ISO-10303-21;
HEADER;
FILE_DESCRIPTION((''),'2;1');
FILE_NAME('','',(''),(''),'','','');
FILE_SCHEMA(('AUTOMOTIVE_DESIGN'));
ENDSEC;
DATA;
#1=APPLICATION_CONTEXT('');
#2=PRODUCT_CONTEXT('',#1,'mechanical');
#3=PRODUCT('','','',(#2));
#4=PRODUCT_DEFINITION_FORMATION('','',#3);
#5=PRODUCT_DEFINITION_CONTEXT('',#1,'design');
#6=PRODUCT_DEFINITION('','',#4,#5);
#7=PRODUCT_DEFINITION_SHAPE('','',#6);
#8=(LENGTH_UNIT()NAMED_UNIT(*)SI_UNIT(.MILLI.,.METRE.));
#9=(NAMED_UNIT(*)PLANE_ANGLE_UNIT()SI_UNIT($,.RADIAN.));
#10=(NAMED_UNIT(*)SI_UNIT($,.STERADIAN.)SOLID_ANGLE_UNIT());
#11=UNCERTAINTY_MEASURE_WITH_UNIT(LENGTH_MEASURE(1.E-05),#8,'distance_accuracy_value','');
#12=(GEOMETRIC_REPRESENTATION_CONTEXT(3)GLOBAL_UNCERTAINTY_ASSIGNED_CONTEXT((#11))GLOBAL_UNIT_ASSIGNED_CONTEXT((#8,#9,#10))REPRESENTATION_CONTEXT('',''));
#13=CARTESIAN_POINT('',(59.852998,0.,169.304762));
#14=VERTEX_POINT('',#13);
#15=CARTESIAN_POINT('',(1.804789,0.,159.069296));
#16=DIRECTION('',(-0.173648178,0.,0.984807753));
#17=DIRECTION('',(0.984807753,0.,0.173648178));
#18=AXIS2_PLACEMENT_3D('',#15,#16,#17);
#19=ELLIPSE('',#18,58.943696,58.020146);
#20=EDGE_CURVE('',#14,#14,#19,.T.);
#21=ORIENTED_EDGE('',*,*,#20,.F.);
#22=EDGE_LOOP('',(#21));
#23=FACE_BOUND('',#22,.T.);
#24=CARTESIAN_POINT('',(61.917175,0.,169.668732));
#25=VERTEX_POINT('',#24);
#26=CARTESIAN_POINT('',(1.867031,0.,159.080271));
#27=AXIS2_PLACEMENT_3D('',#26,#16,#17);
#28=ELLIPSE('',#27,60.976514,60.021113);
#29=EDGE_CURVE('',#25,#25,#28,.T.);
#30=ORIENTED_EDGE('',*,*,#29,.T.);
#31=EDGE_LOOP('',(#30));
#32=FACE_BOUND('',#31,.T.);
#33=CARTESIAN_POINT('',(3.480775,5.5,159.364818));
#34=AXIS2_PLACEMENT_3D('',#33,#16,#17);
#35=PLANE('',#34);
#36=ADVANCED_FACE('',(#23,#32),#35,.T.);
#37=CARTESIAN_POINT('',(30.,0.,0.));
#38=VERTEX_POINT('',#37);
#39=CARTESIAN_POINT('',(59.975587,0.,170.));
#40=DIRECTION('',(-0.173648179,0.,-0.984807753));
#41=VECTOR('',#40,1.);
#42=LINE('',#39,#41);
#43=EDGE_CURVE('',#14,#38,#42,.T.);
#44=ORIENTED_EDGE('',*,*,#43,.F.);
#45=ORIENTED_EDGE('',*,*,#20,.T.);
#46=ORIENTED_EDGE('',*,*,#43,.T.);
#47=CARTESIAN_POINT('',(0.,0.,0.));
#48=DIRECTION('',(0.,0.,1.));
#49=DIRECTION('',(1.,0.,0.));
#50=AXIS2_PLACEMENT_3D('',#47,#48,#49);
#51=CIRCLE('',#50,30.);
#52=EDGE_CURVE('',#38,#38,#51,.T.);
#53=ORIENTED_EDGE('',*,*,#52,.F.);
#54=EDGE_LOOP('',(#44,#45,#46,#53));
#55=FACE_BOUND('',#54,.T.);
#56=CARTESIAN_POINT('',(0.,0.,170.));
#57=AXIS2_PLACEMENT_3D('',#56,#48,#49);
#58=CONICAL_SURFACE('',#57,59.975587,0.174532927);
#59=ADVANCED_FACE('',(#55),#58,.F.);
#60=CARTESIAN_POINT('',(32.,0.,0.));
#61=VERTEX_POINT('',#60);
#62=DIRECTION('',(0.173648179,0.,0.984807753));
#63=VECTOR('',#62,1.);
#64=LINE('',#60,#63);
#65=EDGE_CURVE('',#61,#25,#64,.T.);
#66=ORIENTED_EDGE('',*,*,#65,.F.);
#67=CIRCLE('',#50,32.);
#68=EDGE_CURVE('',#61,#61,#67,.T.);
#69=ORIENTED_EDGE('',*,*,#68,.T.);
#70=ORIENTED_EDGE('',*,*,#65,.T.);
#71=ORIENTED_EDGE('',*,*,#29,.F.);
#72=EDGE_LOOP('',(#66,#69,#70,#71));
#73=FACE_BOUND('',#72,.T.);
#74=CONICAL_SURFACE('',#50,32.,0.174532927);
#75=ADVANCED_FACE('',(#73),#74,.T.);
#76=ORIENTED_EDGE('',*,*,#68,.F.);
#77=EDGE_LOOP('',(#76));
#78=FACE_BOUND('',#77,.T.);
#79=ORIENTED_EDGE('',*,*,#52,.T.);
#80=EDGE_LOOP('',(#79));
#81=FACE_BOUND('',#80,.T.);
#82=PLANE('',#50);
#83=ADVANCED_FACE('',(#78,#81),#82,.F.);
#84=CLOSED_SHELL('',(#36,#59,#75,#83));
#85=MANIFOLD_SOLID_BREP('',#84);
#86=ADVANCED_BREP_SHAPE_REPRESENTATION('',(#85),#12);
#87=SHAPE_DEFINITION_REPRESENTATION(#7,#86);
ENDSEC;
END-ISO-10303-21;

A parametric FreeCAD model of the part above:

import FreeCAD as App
import Part
import Sketcher
Q = App.Units.Quantity


def add_polygon(sketch, points):
    """Adds a closed chain of lines whose ends are joined by coincident constraints."""
    first, n = sketch.GeometryCount, len(points)
    for a, b in zip(points, points[1:] + points[:1]):
        sketch.addGeometry(Part.LineSegment(App.Vector(*a, 0), App.Vector(*b, 0)), False)
    for i in range(n):
        sketch.addConstraint(Sketcher.Constraint("Coincident", first + i, 2, first + (i + 1) % n, 1))

doc = App.newDocument("Part")
body = doc.addObject("PartDesign::Body", "Body")

# Sketch on XY plane
sketch1 = body.newObject("Sketcher::SketchObject", "Sketch")
sketch1.AttachmentSupport = (doc.getObject("XY_Plane"), [""])
sketch1.MapMode = "FlatFace"
add_polygon(sketch1, [(0, 199), (0, 0), (200, 0), (200, 199)])  # lines 0-3
sketch1.addConstraint([
    Sketcher.Constraint("Vertical", 0),
    Sketcher.Constraint("Horizontal", 1),
    Sketcher.Constraint("Vertical", 2),
    Sketcher.Constraint("Horizontal", 3),
    Sketcher.Constraint("Coincident", 0, 2, -1, 1),
    Sketcher.Constraint("DistanceX", 1, 1, 1, 2, Q("200 mm")),
    Sketcher.Constraint("DistanceY", 0, 2, 0, 1, Q("199 mm")),
])
pad1 = body.newObject("PartDesign::Pad", "Pad")
pad1.Profile = sketch1
pad1.Length = 200
body2 = doc.addObject("PartDesign::Body", "Body001")
doc.recompute()

body.Placement = App.Placement(App.Vector(0, 0, 0), App.Rotation(App.Vector(0, 1, 0), 350))
boolean = body2.newObject("PartDesign::Boolean", "Boolean")
boolean.Type = "Fuse"
boolean.addObjects([body])
body3 = doc.addObject("PartDesign::Body", "Body002")
doc.recompute()

body2.Placement = App.Placement(App.Vector(-95, -94, 142), App.Rotation(App.Vector(0, 0, 1), 0))
boolean2 = body3.newObject("PartDesign::Boolean", "Boolean001")
boolean2.Type = "Fuse"
boolean2.addObjects([body2])
body4 = doc.addObject("PartDesign::Body", "Body003")

# Sketch on XZ plane
sketch2 = body4.newObject("Sketcher::SketchObject", "Sketch001")
sketch2.AttachmentSupport = (doc.getObject("XZ_Plane003"), [""])
sketch2.MapMode = "FlatFace"
add_polygon(sketch2, [(32, 0), (62, 170), (60, 170), (30, 0)])  # lines 0-3
sketch2.addConstraint([
    Sketcher.Constraint("Horizontal", 1),
    Sketcher.Constraint("Horizontal", 3),
    Sketcher.Constraint("PointOnObject", 2, 2, -1),
    Sketcher.Constraint("Parallel", 0, 2),
    Sketcher.Constraint("DistanceX", 1, 2, 1, 1, Q("2 mm")),
    Sketcher.Constraint("Angle", 0, Q("80 deg")),
    Sketcher.Constraint("DistanceY", -1, 1, 0, 2, Q("170 mm")),
    Sketcher.Constraint("DistanceX", -1, 1, 2, 2, Q("30 mm")),
])
revolution = body4.newObject("PartDesign::Revolution", "Revolution")
revolution.Profile = sketch2
revolution.ReferenceAxis = (sketch2, ["V_Axis"])
revolution.Angle = 360
doc.recompute()

boolean3 = body4.newObject("PartDesign::Boolean", "Boolean002")
boolean3.Type = "Cut"
boolean3.addObjects([body3])

doc.recompute()
